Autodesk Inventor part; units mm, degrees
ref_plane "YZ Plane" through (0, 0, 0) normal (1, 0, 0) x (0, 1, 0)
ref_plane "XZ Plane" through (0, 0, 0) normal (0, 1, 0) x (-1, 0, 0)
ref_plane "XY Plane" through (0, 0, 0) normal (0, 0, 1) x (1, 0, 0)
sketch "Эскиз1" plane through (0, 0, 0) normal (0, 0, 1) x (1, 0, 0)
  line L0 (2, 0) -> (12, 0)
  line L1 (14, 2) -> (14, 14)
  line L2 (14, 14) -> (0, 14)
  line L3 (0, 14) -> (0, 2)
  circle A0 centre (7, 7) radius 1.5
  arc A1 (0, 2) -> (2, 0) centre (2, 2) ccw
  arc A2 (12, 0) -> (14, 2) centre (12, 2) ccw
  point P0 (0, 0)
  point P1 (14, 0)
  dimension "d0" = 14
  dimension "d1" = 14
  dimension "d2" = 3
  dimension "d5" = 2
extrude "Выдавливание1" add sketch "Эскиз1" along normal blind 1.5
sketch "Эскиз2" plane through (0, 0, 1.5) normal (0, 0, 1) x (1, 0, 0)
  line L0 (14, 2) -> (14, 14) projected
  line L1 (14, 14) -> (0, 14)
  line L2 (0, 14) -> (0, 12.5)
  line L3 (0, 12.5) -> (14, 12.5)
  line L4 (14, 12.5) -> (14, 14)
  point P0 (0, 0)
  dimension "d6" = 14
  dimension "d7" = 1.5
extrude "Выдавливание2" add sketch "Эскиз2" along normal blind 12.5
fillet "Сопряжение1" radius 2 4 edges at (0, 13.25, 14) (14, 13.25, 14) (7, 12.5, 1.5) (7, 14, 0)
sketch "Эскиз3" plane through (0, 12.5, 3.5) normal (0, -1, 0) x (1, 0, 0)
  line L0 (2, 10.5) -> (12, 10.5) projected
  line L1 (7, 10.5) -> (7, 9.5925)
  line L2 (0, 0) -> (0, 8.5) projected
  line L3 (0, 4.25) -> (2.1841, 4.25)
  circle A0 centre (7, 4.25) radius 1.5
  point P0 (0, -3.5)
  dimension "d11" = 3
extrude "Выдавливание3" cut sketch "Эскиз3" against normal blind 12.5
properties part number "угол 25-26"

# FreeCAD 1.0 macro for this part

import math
import FreeCAD as App
import Part
import Sketcher

V = App.Vector
Q = App.Units.Quantity


def edges_at(feature, points):
    """Names of the edges that pass closest to the given points."""
    edges = feature.Shape.Edges
    near = lambda p: min(range(len(edges)), key=lambda i: edges[i].distToShape(Part.Vertex(*p))[0])
    return sorted({f"Edge{near(p) + 1}" for p in points})

doc = App.newDocument("Part")
params = doc.addObject("Spreadsheet::Sheet", "Params")
for row, (alias, value) in enumerate([
    ("sketch1_diameter", "3 mm"),
    ("sketch1_radius", "2 mm"),
    ("sketch1_width", "14 mm"),
    ("pad1_length", "1.5 mm"),
    ("sketch2_width", "14 mm"),
    ("sketch2_height", "1.5 mm"),
    ("pad2_length", "12.5 mm"),
    ("fillet_radius", "2 mm"),
    ("sketch3_diameter", "3 mm"),
    ("pocket1_length", "12.5 mm"),
], start=1):
    params.set(f"A{row}", alias)
    params.set(f"B{row}", "=" + value)
    params.setAlias(f"B{row}", alias)

body = doc.addObject("PartDesign::Body", "Body")

# Sketch on XY plane
sketch1 = body.newObject("Sketcher::SketchObject", "Sketch")
sketch1.AttachmentSupport = (doc.getObject("XY_Plane"), [""])
sketch1.MapMode = "FlatFace"
sketch1.addGeometry([
    Part.ArcOfCircle(Part.Circle(V(2, 2, 0), V(0, 0, 1), 2), math.radians(180), math.radians(270)),  # 0
    Part.LineSegment(V(2, 0, 0), V(12, 0, 0)),  # 1
    Part.ArcOfCircle(Part.Circle(V(12, 2, 0), V(0, 0, 1), 2), math.radians(-90), math.radians(0)),  # 2
    Part.LineSegment(V(14, 2, 0), V(14, 14, 0)),  # 3
    Part.LineSegment(V(14, 14, 0), V(0, 14, 0)),  # 4
    Part.LineSegment(V(0, 14, 0), V(0, 2, 0)),  # 5
    Part.Circle(V(7, 7, 0), V(0, 0, 1), 1.5),  # 6
], False)
sketch1.addConstraint([
    Sketcher.Constraint("Tangent", 0, 2, 1, 1),
    Sketcher.Constraint("Tangent", 1, 2, 2, 1),
    Sketcher.Constraint("Tangent", 2, 2, 3, 1),
    Sketcher.Constraint("Coincident", 3, 2, 4, 1),
    Sketcher.Constraint("Coincident", 4, 2, 5, 1),
    Sketcher.Constraint("Tangent", 5, 2, 0, 1),
    Sketcher.Constraint("Horizontal", 1),
    Sketcher.Constraint("Vertical", 3),
    Sketcher.Constraint("Horizontal", 4),
    Sketcher.Constraint("Vertical", 5),
    Sketcher.Constraint("Equal", 0, 2),
    Sketcher.Constraint("PointOnObject", 0, 2, -1),
    Sketcher.Constraint("PointOnObject", 4, 2, -2),
    Sketcher.Constraint("Diameter", 6, Q("3 mm")),
    Sketcher.Constraint("Radius", 0, Q("2 mm")),
    Sketcher.Constraint("DistanceX", 4, 2, 4, 1, Q("14 mm")),
    Sketcher.Constraint("DistanceY", -1, 1, 3, 2, Q("14 mm")),
    Sketcher.Constraint("DistanceX", -1, 1, 6, 3, Q("7 mm")),
    Sketcher.Constraint("DistanceY", -1, 1, 6, 3, Q("7 mm")),
])
sketch1.setExpression("Constraints[13]", "Params.sketch1_diameter")
sketch1.setExpression("Constraints[14]", "Params.sketch1_radius")
sketch1.setExpression("Constraints[15]", "Params.sketch1_width")
pad1 = body.newObject("PartDesign::Pad", "Pad")
pad1.Profile = sketch1
pad1.setExpression("Length", "Params.pad1_length")

# Sketch on XY plane
sketch2 = body.newObject("Sketcher::SketchObject", "Sketch001")
sketch2.AttachmentSupport = (doc.getObject("XY_Plane"), [""])
sketch2.MapMode = "FlatFace"
sketch2.AttachmentOffset = App.Placement(V(0, 0, 1.5), App.Rotation())
sketch2.addGeometry([
    Part.LineSegment(V(0, 12.5, 0), V(14, 12.5, 0)),
    Part.LineSegment(V(14, 12.5, 0), V(14, 14, 0)),
    Part.LineSegment(V(14, 14, 0), V(0, 14, 0)),
    Part.LineSegment(V(0, 14, 0), V(0, 12.5, 0)),
], False)
sketch2.addConstraint([
    Sketcher.Constraint("Coincident", 0, 2, 1, 1),
    Sketcher.Constraint("Coincident", 1, 2, 2, 1),
    Sketcher.Constraint("Coincident", 2, 2, 3, 1),
    Sketcher.Constraint("Coincident", 3, 2, 0, 1),
    Sketcher.Constraint("Horizontal", 0),
    Sketcher.Constraint("Vertical", 1),
    Sketcher.Constraint("Horizontal", 2),
    Sketcher.Constraint("Vertical", 3),
    Sketcher.Constraint("PointOnObject", 2, 2, -2),
    Sketcher.Constraint("DistanceX", 0, 1, 0, 2, Q("14 mm")),
    Sketcher.Constraint("DistanceY", 1, 1, 1, 2, Q("1.5 mm")),
    Sketcher.Constraint("DistanceY", -1, 1, 1, 2, Q("14 mm")),
])
sketch2.setExpression("Constraints[9]", "Params.sketch2_width")
sketch2.setExpression("Constraints[10]", "Params.sketch2_height")
pad2 = body.newObject("PartDesign::Pad", "Pad001")
pad2.Profile = sketch2
pad2.setExpression("Length", "Params.pad2_length")
doc.recompute()

fillet = body.newObject("PartDesign::Fillet", "Fillet")
fillet.Base = (pad2, edges_at(pad2, [
    (0, 13.25, 14),
    (14, 13.25, 14),
    (7, 12.5, 1.5),
    (7, 14, 0),
]))
fillet.setExpression("Radius", "Params.fillet_radius")

# Sketch on XZ plane
sketch3 = body.newObject("Sketcher::SketchObject", "Sketch002")
sketch3.AttachmentSupport = (doc.getObject("XZ_Plane"), [""])
sketch3.MapMode = "FlatFace"
sketch3.AttachmentOffset = App.Placement(V(0, 0, -12.5), App.Rotation())
sketch3.addGeometry(Part.Circle(V(7, 7.8, 0), V(0, 0, 1), 1.5), False)
sketch3.addConstraint([
    Sketcher.Constraint("Diameter", 0, Q("3 mm")),
    Sketcher.Constraint("DistanceX", -1, 1, 0, 3, Q("7 mm")),
    Sketcher.Constraint("DistanceY", -1, 1, 0, 3, Q("7.75 mm")),
])
sketch3.setExpression("Constraints[0]", "Params.sketch3_diameter")
pocket1 = body.newObject("PartDesign::Pocket", "Pocket")
pocket1.Profile = sketch3
pocket1.setExpression("Length", "Params.pocket1_length")

doc.recompute()
